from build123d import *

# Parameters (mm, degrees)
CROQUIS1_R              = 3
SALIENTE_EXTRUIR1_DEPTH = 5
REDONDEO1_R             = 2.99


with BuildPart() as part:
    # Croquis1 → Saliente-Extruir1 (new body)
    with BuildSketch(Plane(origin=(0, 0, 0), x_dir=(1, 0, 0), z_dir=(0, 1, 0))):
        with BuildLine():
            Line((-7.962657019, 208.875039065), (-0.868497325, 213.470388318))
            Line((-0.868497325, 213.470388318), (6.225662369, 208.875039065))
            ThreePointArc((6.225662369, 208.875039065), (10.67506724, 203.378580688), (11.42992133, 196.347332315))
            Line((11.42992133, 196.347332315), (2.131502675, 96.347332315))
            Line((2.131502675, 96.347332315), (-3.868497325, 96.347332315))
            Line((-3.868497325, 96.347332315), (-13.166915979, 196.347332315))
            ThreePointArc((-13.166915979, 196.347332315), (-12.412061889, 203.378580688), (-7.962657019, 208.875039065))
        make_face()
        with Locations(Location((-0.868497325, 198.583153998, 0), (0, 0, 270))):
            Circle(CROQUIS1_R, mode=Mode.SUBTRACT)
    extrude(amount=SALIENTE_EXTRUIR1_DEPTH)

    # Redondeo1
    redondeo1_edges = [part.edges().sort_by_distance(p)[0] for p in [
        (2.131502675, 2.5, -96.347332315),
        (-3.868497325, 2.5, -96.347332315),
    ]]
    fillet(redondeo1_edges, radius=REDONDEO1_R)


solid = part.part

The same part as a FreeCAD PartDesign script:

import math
import FreeCAD as App
import Part
import Sketcher

V = App.Vector


def edges_at(feature, points):
    """Names of the edges that pass closest to the given points."""
    edges = feature.Shape.Edges
    near = lambda p: min(range(len(edges)), key=lambda i: edges[i].distToShape(Part.Vertex(*p))[0])
    return sorted({f"Edge{near(p) + 1}" for p in points})

doc = App.newDocument("Part")
body = doc.addObject("PartDesign::Body", "Body")

# Sketch on XZ plane
sketch1 = body.newObject("Sketcher::SketchObject", "Sketch")
sketch1.AttachmentSupport = (doc.getObject("XZ_Plane"), [""])
sketch1.MapMode = "FlatFace"
sketch1.addGeometry([
    Part.LineSegment(V(-0.9, -213.5, 0), V(-8, -208.9, 0)),  # 0
    Part.ArcOfCircle(Part.Circle(V(-0.9, -198.6, 0), V(0, 0, 1), 12.5), math.radians(170), math.radians(235)),  # 1
    Part.LineSegment(V(-13.2, -196.3, 0), V(-3.9, -96.3, 0)),  # 2
    Part.LineSegment(V(-3.9, -96.3, 0), V(2.1, -96.3, 0)),  # 3
    Part.LineSegment(V(2.1, -96.3, 0), V(11.4, -196.3, 0)),  # 4
    Part.ArcOfCircle(Part.Circle(V(-0.9, -198.6, 0), V(0, 0, 1), 12.5), math.radians(-55), math.radians(10)),  # 5
    Part.LineSegment(V(6.2, -208.9, 0), V(-0.9, -213.5, 0)),  # 6
    Part.Circle(V(-0.9, -198.6, 0), V(0, 0, 1), 3),  # 7
], False)
sketch1.addConstraint([
    Sketcher.Constraint("Coincident", 0, 2, 1, 2),
    Sketcher.Constraint("Coincident", 1, 1, 2, 1),
    Sketcher.Constraint("Coincident", 2, 2, 3, 1),
    Sketcher.Constraint("Coincident", 3, 2, 4, 1),
    Sketcher.Constraint("Coincident", 4, 2, 5, 2),
    Sketcher.Constraint("Coincident", 5, 1, 6, 1),
    Sketcher.Constraint("Coincident", 6, 2, 0, 1),
    Sketcher.Constraint("Horizontal", 3),
    Sketcher.Constraint("Coincident", 5, 3, 1, 3),
    Sketcher.Constraint("Coincident", 7, 3, 1, 3),
    Sketcher.Constraint("Equal", 1, 5),
    Sketcher.Constraint("Horizontal", 1, 1, 4, 2),
    Sketcher.Constraint("Horizontal", 0, 2, 5, 1),
    Sketcher.Constraint("Vertical", 7, 3, 6, 2),
    Sketcher.Constraint("Equal", 2, 4),
    Sketcher.Constraint("Diameter", 7, 6.0),
    Sketcher.Constraint("Radius", 1, 12.5),
    Sketcher.Constraint("DistanceX", 3, 1, 3, 2, 6.0),
    Sketcher.Constraint("DistanceY", 1, 1, 2, 2, 100.0),
    Sketcher.Constraint("DistanceY", 0, 2, -1, 1, 208.875039),
    Sketcher.Constraint("DistanceX", -1, 1, 4, 2, 11.429921),
    Sketcher.Constraint("DistanceY", 6, 2, -1, 1, 213.470388),
    Sketcher.Constraint("DistanceX", 0, 2, 7, 3, 7.09416),
    Sketcher.Constraint("DistanceX", 1, 1, 7, 3, 12.298419),
])
pad1 = body.newObject("PartDesign::Pad", "Pad")
pad1.Profile = sketch1
pad1.Length = 5
pad1.Reversed = True
doc.recompute()

fillet = body.newObject("PartDesign::Fillet", "Fillet")
fillet.Base = (pad1, edges_at(pad1, [(2.132, 2.5, -96.347), (-3.868, 2.5, -96.347)]))
fillet.Radius = 2.99

doc.recompute()
